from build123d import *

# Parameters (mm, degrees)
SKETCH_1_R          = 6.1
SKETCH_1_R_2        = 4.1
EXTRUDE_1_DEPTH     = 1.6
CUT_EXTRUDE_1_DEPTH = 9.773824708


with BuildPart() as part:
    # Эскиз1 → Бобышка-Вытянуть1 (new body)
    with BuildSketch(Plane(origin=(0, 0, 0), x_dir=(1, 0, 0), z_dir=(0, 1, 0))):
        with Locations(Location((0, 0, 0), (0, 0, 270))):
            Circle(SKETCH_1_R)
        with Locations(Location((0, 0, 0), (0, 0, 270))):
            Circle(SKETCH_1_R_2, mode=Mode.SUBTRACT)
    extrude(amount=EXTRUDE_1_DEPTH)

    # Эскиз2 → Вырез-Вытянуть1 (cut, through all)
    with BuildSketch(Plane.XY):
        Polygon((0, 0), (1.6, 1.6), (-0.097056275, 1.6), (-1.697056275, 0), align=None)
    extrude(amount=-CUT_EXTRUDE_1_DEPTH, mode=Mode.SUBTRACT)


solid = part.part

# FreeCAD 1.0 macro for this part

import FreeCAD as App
import Part
import Sketcher
Q = App.Units.Quantity

doc = App.newDocument("Part")
body = doc.addObject("PartDesign::Body", "Body")

# Sketch on XZ plane
sketch1 = body.newObject("Sketcher::SketchObject", "Sketch")
sketch1.AttachmentSupport = (doc.getObject("XZ_Plane"), [""])
sketch1.MapMode = "FlatFace"
sketch1.addGeometry(Part.Circle(App.Vector(0, 0, 0), App.Vector(0, 0, 1), 6.1), False)
sketch1.addGeometry(Part.Circle(App.Vector(0, 0, 0), App.Vector(0, 0, 1), 4.1), False)
sketch1.addConstraint(Sketcher.Constraint("Coincident", 0, 3, -1, 1))
sketch1.addConstraint(Sketcher.Constraint("Coincident", 1, 3, -1, 1))
sketch1.addConstraint(Sketcher.Constraint("Diameter", 0, 12.2))
sketch1.addConstraint(Sketcher.Constraint("Diameter", 1, 8.2))
pad1 = body.newObject("PartDesign::Pad", "Pad")
pad1.Profile = sketch1
pad1.Length = 1.6
pad1.Reversed = True

# Sketch on XY plane
sketch2 = body.newObject("Sketcher::SketchObject", "Sketch001")
sketch2.AttachmentSupport = (doc.getObject("XY_Plane"), [""])
sketch2.MapMode = "FlatFace"
sketch2.addGeometry(Part.LineSegment(App.Vector(0, 0, 0), App.Vector(1.6, 1.6, 0)), False)
sketch2.addGeometry(Part.LineSegment(App.Vector(1.6, 1.6, 0), App.Vector(-0.1, 1.6, 0)), False)
sketch2.addGeometry(Part.LineSegment(App.Vector(-0.1, 1.6, 0), App.Vector(-1.7, 0, 0)), False)
sketch2.addGeometry(Part.LineSegment(App.Vector(-1.7, 0, 0), App.Vector(0, 0, 0)), False)
sketch2.addConstraint(Sketcher.Constraint("Coincident", 0, 2, 1, 1))
sketch2.addConstraint(Sketcher.Constraint("Coincident", 1, 2, 2, 1))
sketch2.addConstraint(Sketcher.Constraint("Coincident", 2, 2, 3, 1))
sketch2.addConstraint(Sketcher.Constraint("Coincident", 3, 2, 0, 1))
sketch2.addConstraint(Sketcher.Constraint("Horizontal", 1))
sketch2.addConstraint(Sketcher.Constraint("Horizontal", 3))
sketch2.addConstraint(Sketcher.Constraint("Coincident", 3, 2, -1, 1))
sketch2.addConstraint(Sketcher.Constraint("Parallel", 0, 2))
sketch2.addConstraint(Sketcher.Constraint("Angle", 0, Q("45 deg")))
sketch2.addConstraint(Sketcher.Constraint("DistanceX", -1, 1, 0, 2, 1.6))
sketch2.addConstraint(Sketcher.Constraint("DistanceX", 1, 2, 1, 1, 1.697056))
pocket1 = body.newObject("PartDesign::Pocket", "Pocket")
pocket1.Profile = sketch2
pocket1.Type = "ThroughAll"

doc.recompute()
